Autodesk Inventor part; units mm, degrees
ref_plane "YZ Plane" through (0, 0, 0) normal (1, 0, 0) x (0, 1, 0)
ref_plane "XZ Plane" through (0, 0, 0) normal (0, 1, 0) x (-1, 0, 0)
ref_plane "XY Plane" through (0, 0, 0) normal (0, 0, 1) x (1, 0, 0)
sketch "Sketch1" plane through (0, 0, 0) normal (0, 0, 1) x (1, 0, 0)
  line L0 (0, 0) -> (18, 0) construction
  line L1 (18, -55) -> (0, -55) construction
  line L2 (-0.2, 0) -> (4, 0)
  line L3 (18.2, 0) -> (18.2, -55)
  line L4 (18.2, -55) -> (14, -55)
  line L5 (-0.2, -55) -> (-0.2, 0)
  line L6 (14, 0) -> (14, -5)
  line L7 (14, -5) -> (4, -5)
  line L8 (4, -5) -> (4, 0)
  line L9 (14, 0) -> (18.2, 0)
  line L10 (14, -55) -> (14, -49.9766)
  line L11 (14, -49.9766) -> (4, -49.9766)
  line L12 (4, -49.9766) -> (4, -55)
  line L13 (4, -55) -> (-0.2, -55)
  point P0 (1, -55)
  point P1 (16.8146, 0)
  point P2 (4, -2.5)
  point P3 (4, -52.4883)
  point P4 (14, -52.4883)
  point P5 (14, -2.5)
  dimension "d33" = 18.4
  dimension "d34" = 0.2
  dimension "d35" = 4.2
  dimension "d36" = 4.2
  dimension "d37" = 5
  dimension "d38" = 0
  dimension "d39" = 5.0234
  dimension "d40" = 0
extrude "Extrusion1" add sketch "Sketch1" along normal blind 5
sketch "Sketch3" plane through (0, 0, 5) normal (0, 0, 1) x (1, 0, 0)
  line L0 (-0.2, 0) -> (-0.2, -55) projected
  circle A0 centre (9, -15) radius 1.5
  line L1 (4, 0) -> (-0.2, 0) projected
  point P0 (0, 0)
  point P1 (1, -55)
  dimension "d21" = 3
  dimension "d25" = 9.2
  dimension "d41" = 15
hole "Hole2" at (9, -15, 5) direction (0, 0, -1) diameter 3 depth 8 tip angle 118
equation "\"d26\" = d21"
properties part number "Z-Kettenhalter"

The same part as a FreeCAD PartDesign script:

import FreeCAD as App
import Part
import Sketcher


def add_polygon(sketch, points):
    """Adds a closed chain of lines whose ends are joined by coincident constraints."""
    first, n = sketch.GeometryCount, len(points)
    for a, b in zip(points, points[1:] + points[:1]):
        sketch.addGeometry(Part.LineSegment(App.Vector(*a, 0), App.Vector(*b, 0)), False)
    for i in range(n):
        sketch.addConstraint(Sketcher.Constraint("Coincident", first + i, 2, first + (i + 1) % n, 1))

doc = App.newDocument("Part")
body = doc.addObject("PartDesign::Body", "Body")

# Sketch on XY plane
sketch1 = body.newObject("Sketcher::SketchObject", "Sketch")
sketch1.AttachmentSupport = (doc.getObject("XY_Plane"), [""])
sketch1.MapMode = "FlatFace"
add_polygon(sketch1, [(4, 0), (-0.2, 0), (-0.2, -55), (4, -55), (4, -50), (14, -50), (14, -55), (18.2, -55), (18.2, 0), (14, 0), (14, -5), (4, -5)])  # lines 0-11
sketch1.addConstraint([
    Sketcher.Constraint("Horizontal", 0),
    Sketcher.Constraint("Vertical", 1),
    Sketcher.Constraint("Horizontal", 2),
    Sketcher.Constraint("Vertical", 3),
    Sketcher.Constraint("Horizontal", 4),
    Sketcher.Constraint("Vertical", 5),
    Sketcher.Constraint("Horizontal", 6),
    Sketcher.Constraint("Vertical", 7),
    Sketcher.Constraint("Horizontal", 8),
    Sketcher.Constraint("Vertical", 9),
    Sketcher.Constraint("Horizontal", 10),
    Sketcher.Constraint("Vertical", 11),
    Sketcher.Constraint("PointOnObject", 0, 2, -1),
    Sketcher.Constraint("PointOnObject", 7, 2, -1),
    Sketcher.Constraint("Horizontal", 2, 2, 5, 2),
    Sketcher.Constraint("Vertical", 5, 2, 8, 2),
    Sketcher.Constraint("Vertical", 3, 2, 10, 2),
    Sketcher.Constraint("Equal", 2, 6),
    Sketcher.Constraint("DistanceY", 9, 2, 9, 1, 5.0),
    Sketcher.Constraint("DistanceX", 0, 2, 0, 1, 4.2),
    Sketcher.Constraint("DistanceX", 0, 2, -1, 1, 0.2),
    Sketcher.Constraint("DistanceX", 1, 2, 6, 2, 18.4),
    Sketcher.Constraint("DistanceY", 1, 2, 1, 1, 55.0),
    Sketcher.Constraint("DistanceY", 3, 1, 3, 2, 5.0234),
])
pad1 = body.newObject("PartDesign::Pad", "Pad")
pad1.Profile = sketch1
pad1.Length = 5

# Sketch on XY plane
sketch2 = body.newObject("Sketcher::SketchObject", "Sketch001")
sketch2.AttachmentSupport = (doc.getObject("XY_Plane"), [""])
sketch2.MapMode = "FlatFace"
sketch2.AttachmentOffset = App.Placement(App.Vector(0, 0, 5), App.Rotation())
sketch2.addGeometry(Part.Circle(App.Vector(9, -15, 0), App.Vector(0, 0, 1), 1.5), False)
sketch2.addConstraint([
    Sketcher.Constraint("Diameter", 0, 3.0),
    Sketcher.Constraint("DistanceX", -1, 1, 0, 3, 9.0),
    Sketcher.Constraint("DistanceY", 0, 3, -1, 1, 15.0),
])
doc.recompute()
hole = body.newObject("PartDesign::Hole", "Hole")
hole.Profile = sketch2
hole.ThreadType = "None"
hole.Diameter = 3
hole.DepthType = "Dimension"
hole.Depth = 8
hole.DrillPoint = "Angled"
hole.DrillPointAngle = 118

doc.recompute()
